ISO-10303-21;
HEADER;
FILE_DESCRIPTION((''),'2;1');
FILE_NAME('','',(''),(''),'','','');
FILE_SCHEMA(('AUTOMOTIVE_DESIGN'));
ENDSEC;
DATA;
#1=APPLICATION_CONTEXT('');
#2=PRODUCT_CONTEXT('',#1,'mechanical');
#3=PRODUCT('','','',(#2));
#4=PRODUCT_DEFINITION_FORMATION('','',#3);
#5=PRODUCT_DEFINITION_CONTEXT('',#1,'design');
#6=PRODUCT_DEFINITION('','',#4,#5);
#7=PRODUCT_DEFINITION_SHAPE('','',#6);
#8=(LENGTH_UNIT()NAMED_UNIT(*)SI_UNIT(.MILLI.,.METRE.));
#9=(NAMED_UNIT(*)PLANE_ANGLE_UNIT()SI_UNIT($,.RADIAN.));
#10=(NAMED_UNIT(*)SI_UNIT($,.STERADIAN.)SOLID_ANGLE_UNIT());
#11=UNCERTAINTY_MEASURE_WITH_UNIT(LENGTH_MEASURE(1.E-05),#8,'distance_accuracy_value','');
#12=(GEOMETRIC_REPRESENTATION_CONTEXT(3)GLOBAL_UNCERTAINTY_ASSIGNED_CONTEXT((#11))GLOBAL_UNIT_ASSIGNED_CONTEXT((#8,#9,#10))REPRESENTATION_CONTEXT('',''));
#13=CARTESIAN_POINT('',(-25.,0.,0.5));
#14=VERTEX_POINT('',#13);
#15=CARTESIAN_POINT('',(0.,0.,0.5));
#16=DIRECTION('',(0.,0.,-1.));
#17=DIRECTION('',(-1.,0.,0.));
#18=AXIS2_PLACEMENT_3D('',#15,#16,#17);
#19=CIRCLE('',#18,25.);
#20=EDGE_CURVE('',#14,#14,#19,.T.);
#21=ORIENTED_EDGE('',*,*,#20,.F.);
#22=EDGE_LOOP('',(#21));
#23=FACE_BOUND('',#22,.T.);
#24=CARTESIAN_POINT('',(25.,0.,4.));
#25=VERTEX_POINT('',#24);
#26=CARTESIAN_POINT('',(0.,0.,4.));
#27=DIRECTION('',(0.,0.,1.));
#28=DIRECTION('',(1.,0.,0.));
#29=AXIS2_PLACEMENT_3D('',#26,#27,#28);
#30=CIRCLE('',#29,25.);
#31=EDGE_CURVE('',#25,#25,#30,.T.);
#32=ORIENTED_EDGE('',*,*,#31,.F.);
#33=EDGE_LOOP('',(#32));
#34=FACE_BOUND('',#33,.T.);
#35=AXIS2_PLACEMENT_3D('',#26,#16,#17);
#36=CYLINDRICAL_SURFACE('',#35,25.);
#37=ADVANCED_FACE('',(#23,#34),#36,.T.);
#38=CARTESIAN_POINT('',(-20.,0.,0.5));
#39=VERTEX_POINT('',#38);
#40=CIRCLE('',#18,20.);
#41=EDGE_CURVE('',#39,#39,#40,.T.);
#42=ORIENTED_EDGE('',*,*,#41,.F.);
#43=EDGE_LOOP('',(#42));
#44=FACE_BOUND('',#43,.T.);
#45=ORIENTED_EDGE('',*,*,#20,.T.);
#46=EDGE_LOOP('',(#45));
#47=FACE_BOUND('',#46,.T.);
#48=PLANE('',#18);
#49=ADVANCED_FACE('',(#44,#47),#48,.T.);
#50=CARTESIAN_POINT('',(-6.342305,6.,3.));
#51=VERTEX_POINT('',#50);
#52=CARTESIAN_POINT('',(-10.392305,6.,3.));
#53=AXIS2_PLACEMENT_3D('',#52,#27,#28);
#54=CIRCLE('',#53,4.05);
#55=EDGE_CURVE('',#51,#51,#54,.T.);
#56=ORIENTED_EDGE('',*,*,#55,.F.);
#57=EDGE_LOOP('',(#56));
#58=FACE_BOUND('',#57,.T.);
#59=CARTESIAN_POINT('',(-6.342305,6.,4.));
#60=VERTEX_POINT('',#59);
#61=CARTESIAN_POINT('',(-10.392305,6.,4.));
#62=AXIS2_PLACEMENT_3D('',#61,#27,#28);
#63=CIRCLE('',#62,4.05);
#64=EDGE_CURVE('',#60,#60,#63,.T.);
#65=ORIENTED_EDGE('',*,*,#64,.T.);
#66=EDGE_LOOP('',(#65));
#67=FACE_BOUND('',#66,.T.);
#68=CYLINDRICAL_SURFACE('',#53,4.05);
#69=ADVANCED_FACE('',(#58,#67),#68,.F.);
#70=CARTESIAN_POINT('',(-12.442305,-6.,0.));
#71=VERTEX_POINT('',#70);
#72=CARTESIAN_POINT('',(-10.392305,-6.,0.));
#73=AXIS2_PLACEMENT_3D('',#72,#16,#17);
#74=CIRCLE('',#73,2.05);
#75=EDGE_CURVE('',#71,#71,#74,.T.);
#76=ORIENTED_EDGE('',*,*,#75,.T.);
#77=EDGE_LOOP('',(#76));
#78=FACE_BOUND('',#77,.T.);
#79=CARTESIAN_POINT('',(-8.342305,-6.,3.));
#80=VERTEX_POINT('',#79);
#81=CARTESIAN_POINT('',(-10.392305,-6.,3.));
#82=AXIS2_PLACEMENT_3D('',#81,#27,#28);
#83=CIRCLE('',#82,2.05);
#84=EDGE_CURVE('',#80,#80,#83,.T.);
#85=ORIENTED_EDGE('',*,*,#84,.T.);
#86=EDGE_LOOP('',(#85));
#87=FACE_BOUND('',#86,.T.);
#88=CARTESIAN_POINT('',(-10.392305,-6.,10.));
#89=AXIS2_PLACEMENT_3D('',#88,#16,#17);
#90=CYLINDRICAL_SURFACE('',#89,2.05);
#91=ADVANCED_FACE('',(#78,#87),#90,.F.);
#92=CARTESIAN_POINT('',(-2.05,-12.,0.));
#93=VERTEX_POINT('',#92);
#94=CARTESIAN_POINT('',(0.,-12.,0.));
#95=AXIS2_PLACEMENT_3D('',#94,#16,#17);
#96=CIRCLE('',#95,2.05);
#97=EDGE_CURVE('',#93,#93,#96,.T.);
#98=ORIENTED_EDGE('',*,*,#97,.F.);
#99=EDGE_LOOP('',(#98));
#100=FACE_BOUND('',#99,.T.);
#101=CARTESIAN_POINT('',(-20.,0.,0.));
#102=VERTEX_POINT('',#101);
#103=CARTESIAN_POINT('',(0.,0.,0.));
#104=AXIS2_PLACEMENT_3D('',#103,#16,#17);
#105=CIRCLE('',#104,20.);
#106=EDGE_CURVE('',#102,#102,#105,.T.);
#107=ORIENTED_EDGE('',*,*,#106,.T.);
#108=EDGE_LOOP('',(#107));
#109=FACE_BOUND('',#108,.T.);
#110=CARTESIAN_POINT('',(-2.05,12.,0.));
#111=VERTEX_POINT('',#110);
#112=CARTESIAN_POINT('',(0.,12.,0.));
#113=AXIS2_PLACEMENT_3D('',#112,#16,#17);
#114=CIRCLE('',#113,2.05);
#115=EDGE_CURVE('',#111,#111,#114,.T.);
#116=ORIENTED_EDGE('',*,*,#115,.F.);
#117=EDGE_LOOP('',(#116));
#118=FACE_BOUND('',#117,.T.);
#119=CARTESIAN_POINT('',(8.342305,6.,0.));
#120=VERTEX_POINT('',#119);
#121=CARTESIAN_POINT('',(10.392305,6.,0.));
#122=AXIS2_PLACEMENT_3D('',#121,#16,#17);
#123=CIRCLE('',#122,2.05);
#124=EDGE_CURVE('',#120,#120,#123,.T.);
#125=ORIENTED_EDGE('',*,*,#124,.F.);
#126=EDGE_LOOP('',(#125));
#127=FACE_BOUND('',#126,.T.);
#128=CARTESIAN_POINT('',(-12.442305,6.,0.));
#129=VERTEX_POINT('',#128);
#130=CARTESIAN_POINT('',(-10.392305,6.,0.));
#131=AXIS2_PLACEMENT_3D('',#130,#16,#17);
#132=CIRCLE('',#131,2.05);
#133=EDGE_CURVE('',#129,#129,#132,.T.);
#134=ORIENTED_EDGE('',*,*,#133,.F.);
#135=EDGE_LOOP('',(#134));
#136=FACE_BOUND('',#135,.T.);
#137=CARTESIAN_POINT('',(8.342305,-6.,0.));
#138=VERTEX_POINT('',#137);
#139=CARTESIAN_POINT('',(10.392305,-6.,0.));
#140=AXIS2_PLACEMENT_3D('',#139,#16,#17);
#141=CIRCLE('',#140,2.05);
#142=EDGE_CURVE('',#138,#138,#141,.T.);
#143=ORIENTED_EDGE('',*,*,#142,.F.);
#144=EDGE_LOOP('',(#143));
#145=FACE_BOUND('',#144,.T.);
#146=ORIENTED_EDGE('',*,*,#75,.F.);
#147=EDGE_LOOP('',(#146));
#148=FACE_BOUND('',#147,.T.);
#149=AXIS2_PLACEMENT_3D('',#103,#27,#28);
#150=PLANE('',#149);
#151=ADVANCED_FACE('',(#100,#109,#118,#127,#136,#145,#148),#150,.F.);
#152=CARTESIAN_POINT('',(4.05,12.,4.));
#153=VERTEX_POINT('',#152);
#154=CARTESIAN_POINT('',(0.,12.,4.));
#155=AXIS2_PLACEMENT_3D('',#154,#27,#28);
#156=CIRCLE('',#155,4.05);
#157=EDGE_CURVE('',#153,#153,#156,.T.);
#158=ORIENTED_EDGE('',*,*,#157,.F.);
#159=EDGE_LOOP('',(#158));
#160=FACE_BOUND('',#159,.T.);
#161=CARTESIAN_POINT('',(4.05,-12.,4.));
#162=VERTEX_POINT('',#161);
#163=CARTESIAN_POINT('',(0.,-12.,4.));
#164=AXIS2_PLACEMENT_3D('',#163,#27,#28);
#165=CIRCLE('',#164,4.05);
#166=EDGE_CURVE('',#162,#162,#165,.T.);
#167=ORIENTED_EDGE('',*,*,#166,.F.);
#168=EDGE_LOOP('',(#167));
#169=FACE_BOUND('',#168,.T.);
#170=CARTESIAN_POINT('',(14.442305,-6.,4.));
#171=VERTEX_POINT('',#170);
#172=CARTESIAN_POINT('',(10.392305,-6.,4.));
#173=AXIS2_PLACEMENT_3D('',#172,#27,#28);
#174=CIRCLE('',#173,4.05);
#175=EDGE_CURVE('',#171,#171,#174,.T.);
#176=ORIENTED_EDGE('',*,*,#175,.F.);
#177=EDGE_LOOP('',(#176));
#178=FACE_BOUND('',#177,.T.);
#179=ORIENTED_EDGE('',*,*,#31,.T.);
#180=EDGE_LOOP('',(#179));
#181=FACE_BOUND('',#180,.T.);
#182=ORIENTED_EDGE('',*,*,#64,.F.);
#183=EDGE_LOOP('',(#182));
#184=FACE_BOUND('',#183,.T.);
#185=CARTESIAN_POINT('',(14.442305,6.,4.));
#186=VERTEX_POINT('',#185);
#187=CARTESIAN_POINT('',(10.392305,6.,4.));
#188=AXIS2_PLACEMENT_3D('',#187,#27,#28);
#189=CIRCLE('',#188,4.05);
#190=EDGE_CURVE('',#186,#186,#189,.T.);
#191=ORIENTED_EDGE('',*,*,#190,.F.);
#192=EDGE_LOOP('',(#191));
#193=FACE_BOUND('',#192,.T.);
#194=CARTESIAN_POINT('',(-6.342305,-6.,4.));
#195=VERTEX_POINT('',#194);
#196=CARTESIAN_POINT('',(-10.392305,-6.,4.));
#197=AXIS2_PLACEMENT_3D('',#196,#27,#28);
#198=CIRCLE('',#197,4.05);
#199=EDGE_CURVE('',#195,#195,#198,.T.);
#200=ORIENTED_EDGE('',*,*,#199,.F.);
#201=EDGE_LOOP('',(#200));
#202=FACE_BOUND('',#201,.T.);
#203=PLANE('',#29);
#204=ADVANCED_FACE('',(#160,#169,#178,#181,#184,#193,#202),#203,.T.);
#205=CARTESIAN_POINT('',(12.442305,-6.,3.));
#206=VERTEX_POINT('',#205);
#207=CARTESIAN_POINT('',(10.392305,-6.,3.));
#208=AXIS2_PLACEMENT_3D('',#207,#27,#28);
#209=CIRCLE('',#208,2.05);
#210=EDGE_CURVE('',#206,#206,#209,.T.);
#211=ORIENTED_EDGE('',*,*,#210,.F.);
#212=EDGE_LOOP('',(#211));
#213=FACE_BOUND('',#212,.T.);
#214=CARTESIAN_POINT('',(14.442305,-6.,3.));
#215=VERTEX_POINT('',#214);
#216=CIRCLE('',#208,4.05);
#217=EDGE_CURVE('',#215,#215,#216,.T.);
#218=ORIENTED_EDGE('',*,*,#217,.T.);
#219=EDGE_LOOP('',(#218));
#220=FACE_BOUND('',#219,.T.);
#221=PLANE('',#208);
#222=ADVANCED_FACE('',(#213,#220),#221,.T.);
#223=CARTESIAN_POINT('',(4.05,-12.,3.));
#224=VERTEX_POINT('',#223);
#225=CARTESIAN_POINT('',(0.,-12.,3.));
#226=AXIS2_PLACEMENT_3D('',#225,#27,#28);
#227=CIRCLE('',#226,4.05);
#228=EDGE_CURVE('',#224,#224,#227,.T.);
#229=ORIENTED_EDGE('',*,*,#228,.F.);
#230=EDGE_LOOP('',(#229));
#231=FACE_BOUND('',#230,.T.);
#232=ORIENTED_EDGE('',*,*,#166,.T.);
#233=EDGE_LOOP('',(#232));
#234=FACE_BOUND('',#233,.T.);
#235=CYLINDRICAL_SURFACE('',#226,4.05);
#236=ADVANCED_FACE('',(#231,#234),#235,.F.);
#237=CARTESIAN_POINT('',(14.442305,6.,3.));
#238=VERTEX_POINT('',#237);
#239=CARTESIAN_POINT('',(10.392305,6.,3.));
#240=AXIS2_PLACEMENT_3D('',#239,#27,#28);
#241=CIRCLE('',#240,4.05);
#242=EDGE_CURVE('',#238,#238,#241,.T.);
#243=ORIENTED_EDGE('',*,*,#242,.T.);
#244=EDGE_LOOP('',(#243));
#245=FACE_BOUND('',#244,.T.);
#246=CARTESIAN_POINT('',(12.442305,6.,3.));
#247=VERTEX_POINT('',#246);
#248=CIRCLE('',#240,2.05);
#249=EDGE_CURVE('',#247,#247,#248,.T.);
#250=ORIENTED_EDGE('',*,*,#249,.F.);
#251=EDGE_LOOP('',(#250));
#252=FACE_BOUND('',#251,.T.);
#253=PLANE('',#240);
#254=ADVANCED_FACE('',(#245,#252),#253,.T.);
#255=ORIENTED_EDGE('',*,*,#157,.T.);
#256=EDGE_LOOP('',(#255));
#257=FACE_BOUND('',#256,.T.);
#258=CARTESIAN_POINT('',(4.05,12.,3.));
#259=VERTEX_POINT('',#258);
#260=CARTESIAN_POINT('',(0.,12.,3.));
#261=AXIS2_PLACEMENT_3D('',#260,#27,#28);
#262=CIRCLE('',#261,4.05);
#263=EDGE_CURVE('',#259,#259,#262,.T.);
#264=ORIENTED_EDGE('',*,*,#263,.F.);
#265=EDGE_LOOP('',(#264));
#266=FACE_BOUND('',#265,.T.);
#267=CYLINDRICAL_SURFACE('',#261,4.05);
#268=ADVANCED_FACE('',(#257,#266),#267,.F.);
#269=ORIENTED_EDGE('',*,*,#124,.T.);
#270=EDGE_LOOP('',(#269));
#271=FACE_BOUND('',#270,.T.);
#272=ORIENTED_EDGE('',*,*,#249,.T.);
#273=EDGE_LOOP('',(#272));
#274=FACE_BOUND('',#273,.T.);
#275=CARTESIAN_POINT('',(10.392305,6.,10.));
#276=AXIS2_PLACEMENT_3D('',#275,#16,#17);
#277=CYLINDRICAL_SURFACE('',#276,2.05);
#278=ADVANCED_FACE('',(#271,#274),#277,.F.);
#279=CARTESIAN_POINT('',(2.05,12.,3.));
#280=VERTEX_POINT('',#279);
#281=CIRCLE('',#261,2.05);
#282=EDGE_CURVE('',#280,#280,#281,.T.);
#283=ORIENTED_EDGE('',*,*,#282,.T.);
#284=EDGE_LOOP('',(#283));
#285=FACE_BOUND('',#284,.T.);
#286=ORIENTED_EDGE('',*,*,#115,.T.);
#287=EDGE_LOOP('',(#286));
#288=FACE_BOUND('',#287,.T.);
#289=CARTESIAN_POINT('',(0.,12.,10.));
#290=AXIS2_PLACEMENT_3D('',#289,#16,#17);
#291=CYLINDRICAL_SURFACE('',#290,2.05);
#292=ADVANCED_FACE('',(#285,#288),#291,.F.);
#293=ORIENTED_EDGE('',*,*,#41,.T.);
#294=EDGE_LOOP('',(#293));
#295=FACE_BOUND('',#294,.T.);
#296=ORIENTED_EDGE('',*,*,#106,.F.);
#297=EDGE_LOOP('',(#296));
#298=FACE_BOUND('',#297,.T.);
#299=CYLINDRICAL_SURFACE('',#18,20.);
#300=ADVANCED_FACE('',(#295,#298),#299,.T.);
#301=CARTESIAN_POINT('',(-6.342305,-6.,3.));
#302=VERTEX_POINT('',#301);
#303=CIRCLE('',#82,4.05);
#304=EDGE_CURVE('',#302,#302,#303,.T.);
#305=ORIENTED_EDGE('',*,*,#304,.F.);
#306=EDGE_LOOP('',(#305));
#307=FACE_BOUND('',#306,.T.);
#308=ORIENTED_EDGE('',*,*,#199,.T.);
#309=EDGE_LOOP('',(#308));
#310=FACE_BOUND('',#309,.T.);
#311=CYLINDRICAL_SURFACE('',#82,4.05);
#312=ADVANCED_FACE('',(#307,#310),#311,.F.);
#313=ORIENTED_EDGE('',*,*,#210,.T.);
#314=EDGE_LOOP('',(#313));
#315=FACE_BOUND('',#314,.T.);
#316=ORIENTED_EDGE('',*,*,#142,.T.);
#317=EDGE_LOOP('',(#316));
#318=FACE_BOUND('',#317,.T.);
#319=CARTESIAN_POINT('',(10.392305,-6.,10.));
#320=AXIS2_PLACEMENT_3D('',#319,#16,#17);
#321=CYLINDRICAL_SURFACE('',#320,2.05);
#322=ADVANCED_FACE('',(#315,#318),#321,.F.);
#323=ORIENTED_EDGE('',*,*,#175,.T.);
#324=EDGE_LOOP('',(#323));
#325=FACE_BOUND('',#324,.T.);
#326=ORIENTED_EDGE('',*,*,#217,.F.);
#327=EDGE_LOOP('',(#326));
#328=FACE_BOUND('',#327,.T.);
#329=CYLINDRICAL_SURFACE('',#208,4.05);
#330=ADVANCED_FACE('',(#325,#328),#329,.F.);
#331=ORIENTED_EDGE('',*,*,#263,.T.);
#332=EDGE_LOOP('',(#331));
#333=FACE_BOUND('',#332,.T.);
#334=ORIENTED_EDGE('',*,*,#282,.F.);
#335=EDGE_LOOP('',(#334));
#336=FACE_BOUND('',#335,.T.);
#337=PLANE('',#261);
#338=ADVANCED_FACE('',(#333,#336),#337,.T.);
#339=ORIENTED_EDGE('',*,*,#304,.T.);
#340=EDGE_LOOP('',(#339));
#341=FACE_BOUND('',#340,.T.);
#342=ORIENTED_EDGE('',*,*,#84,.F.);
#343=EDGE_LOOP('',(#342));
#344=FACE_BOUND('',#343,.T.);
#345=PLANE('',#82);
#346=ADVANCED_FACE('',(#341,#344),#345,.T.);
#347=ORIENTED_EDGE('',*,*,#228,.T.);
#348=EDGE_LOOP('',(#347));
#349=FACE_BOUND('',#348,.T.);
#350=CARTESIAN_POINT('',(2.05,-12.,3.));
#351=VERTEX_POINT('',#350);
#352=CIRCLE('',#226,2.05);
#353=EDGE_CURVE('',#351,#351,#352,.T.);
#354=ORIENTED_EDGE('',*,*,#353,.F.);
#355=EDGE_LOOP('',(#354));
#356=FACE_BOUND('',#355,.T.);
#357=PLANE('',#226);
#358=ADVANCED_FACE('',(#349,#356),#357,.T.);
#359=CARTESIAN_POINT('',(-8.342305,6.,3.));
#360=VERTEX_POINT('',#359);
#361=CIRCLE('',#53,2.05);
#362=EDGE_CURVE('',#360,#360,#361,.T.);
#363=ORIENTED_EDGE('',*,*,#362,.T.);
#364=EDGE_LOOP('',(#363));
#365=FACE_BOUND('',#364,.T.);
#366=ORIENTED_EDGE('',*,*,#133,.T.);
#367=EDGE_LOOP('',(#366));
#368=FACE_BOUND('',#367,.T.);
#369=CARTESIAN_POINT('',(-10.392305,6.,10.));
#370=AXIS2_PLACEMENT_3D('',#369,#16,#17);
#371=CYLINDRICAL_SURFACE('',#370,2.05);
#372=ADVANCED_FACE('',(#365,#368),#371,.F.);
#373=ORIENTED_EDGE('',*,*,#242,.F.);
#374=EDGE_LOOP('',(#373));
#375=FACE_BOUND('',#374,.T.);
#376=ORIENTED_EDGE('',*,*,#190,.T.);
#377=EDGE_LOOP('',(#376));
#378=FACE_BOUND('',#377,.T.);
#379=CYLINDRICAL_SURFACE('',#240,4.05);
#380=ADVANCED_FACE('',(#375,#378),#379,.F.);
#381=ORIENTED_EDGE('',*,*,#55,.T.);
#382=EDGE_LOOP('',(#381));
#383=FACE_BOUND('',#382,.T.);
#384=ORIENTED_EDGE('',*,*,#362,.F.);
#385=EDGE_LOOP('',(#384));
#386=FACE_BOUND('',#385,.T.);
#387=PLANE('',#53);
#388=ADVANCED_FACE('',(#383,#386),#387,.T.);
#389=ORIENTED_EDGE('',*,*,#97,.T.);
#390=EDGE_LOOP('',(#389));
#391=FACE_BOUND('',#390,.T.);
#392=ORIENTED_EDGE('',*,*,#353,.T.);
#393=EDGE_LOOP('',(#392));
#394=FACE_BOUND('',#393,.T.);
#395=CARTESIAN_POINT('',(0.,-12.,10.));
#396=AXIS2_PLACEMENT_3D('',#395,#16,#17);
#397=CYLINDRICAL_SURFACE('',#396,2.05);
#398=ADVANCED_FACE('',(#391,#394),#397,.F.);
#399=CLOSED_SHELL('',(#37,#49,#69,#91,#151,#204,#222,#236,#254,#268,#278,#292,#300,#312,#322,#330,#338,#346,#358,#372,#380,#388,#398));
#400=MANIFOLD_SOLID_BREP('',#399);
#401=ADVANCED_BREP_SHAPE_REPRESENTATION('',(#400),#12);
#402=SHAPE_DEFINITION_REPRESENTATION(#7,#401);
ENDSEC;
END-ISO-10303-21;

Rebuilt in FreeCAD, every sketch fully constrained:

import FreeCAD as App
import Part
import Sketcher

V = App.Vector

doc = App.newDocument("Part")
params = doc.addObject("Spreadsheet::Sheet", "Params")
for row, (alias, value) in enumerate([
    ("sketch1_diameter", "50 mm"),
    ("pad1_length", "4 mm"),
    ("sketch2_diameter", "4.1 mm"),
    ("pocket1_length", "10 mm"),
    ("sketch3_diameter", "8.1 mm"),
    ("sketch3_diameter2", "4.1 mm"),
    ("pocket2_length", "1 mm"),
    ("sketch4_diameter", "50 mm"),
    ("sketch4_diameter2", "40 mm"),
    ("pocket3_length", "0.5 mm"),
], start=1):
    params.set(f"A{row}", alias)
    params.set(f"B{row}", "=" + value)
    params.setAlias(f"B{row}", alias)

body = doc.addObject("PartDesign::Body", "Body")

# Sketch on XY plane
sketch1 = doc.addObject("Sketcher::SketchObject", "Sketch")
body.addObject(sketch1)
sketch1.AttachmentSupport = (doc.XY_Plane, [""])
sketch1.MapMode = "FlatFace"
sketch1.addGeometry(Part.Circle(V(0, 0, 0), V(0, 0, 1), 25), False)
sketch1.addConstraint(Sketcher.Constraint("Coincident", 0, 3, -1, 1))
sketch1.addConstraint(Sketcher.Constraint("Diameter", 0, 50.0))
sketch1.setExpression("Constraints[1]", "Params.sketch1_diameter")
pad1 = doc.addObject("PartDesign::Pad", "Pad")
body.addObject(pad1)
pad1.Profile = sketch1
pad1.setExpression("Length", "Params.pad1_length")

# Sketch on XY plane
sketch2 = doc.addObject("Sketcher::SketchObject", "Sketch001")
body.addObject(sketch2)
sketch2.AttachmentSupport = (doc.XY_Plane, [""])
sketch2.MapMode = "FlatFace"
sketch2.addGeometry(Part.Circle(V(10.4, -6, 0), V(0, 0, 1), 2), False)
sketch2.addGeometry(Part.Circle(V(10.4, 6, 0), V(0, 0, 1), 2), False)
sketch2.addGeometry(Part.Circle(V(0, 12, 0), V(0, 0, 1), 2), False)
sketch2.addGeometry(Part.Circle(V(-10.4, 6, 0), V(0, 0, 1), 2), False)
sketch2.addGeometry(Part.Circle(V(-10.4, -6, 0), V(0, 0, 1), 2), False)
sketch2.addGeometry(Part.Circle(V(0, -12, 0), V(0, 0, 1), 2), False)
sketch2.addConstraint(Sketcher.Constraint("Equal", 0, 1))
sketch2.addConstraint(Sketcher.Constraint("Equal", 1, 2))
sketch2.addConstraint(Sketcher.Constraint("Equal", 2, 3))
sketch2.addConstraint(Sketcher.Constraint("Equal", 3, 4))
sketch2.addConstraint(Sketcher.Constraint("Equal", 4, 5))
sketch2.addConstraint(Sketcher.Constraint("Symmetric", 0, 3, 3, 3, -1, 1))
sketch2.addConstraint(Sketcher.Constraint("Symmetric", 1, 3, 4, 3, -1, 1))
sketch2.addConstraint(Sketcher.Constraint("Symmetric", 2, 3, 5, 3, -1, 1))
sketch2.addConstraint(Sketcher.Constraint("Symmetric", 1, 3, 3, 3, -2))
sketch2.addConstraint(Sketcher.Constraint("PointOnObject", 2, 3, -2))
sketch2.addConstraint(Sketcher.Constraint("Diameter", 0, 4.1))
sketch2.addConstraint(Sketcher.Constraint("DistanceY", 0, 3, -1, 1, 6.0))
sketch2.addConstraint(Sketcher.Constraint("DistanceY", -1, 1, 2, 3, 12.0))
sketch2.addConstraint(Sketcher.Constraint("DistanceX", 3, 3, 1, 3, 20.78461))
sketch2.setExpression("Constraints[10]", "Params.sketch2_diameter")
pocket1 = doc.addObject("PartDesign::Pocket", "Pocket")
body.addObject(pocket1)
pocket1.Profile = sketch2
pocket1.setExpression("Length", "Params.pocket1_length")
pocket1.Reversed = True

# Sketch on XY plane
sketch3 = doc.addObject("Sketcher::SketchObject", "Sketch002")
body.addObject(sketch3)
sketch3.AttachmentSupport = (doc.XY_Plane, [""])
sketch3.MapMode = "FlatFace"
sketch3.AttachmentOffset = App.Placement(V(0, 0, 4), App.Rotation())
sketch3.addGeometry(Part.Circle(V(-10.4, 6, 0), V(0, 0, 1), 4), False)
sketch3.addGeometry(Part.Circle(V(-10.4, 6, 0), V(0, 0, 1), 2), False)
sketch3.addGeometry(Part.Circle(V(-10.4, -6, 0), V(0, 0, 1), 4), False)
sketch3.addGeometry(Part.Circle(V(-10.4, -6, 0), V(0, 0, 1), 2), False)
sketch3.addGeometry(Part.Circle(V(0, -12, 0), V(0, 0, 1), 4), False)
sketch3.addGeometry(Part.Circle(V(0, -12, 0), V(0, 0, 1), 2), False)
sketch3.addGeometry(Part.Circle(V(10.4, -6, 0), V(0, 0, 1), 4), False)
sketch3.addGeometry(Part.Circle(V(10.4, -6, 0), V(0, 0, 1), 2), False)
sketch3.addGeometry(Part.Circle(V(10.4, 6, 0), V(0, 0, 1), 4), False)
sketch3.addGeometry(Part.Circle(V(10.4, 6, 0), V(0, 0, 1), 2), False)
sketch3.addGeometry(Part.Circle(V(0, 12, 0), V(0, 0, 1), 4), False)
sketch3.addGeometry(Part.Circle(V(0, 12, 0), V(0, 0, 1), 2), False)
sketch3.addConstraint(Sketcher.Constraint("Coincident", 1, 3, 0, 3))
sketch3.addConstraint(Sketcher.Constraint("Coincident", 3, 3, 2, 3))
sketch3.addConstraint(Sketcher.Constraint("Coincident", 5, 3, 4, 3))
sketch3.addConstraint(Sketcher.Constraint("Coincident", 7, 3, 6, 3))
sketch3.addConstraint(Sketcher.Constraint("Coincident", 9, 3, 8, 3))
sketch3.addConstraint(Sketcher.Constraint("Coincident", 11, 3, 10, 3))
sketch3.addConstraint(Sketcher.Constraint("Equal", 0, 2))
sketch3.addConstraint(Sketcher.Constraint("Equal", 1, 3))
sketch3.addConstraint(Sketcher.Constraint("Equal", 2, 4))
sketch3.addConstraint(Sketcher.Constraint("Equal", 3, 5))
sketch3.addConstraint(Sketcher.Constraint("Equal", 4, 6))
sketch3.addConstraint(Sketcher.Constraint("Equal", 5, 7))
sketch3.addConstraint(Sketcher.Constraint("Equal", 6, 8))
sketch3.addConstraint(Sketcher.Constraint("Equal", 7, 9))
sketch3.addConstraint(Sketcher.Constraint("Equal", 8, 10))
sketch3.addConstraint(Sketcher.Constraint("Equal", 9, 11))
sketch3.addConstraint(Sketcher.Constraint("Symmetric", 0, 3, 6, 3, -1, 1))
sketch3.addConstraint(Sketcher.Constraint("Symmetric", 2, 3, 8, 3, -1, 1))
sketch3.addConstraint(Sketcher.Constraint("Symmetric", 4, 3, 10, 3, -1, 1))
sketch3.addConstraint(Sketcher.Constraint("Symmetric", 2, 3, 6, 3, -2))
sketch3.addConstraint(Sketcher.Constraint("PointOnObject", 4, 3, -2))
sketch3.addConstraint(Sketcher.Constraint("Diameter", 0, 8.1))
sketch3.addConstraint(Sketcher.Constraint("Diameter", 1, 4.1))
sketch3.addConstraint(Sketcher.Constraint("DistanceY", -1, 1, 0, 3, 6.0))
sketch3.addConstraint(Sketcher.Constraint("DistanceY", 4, 3, -1, 1, 12.0))
sketch3.addConstraint(Sketcher.Constraint("DistanceX", 2, 3, 6, 3, 20.78461))
sketch3.setExpression("Constraints[21]", "Params.sketch3_diameter")
sketch3.setExpression("Constraints[22]", "Params.sketch3_diameter2")
pocket2 = doc.addObject("PartDesign::Pocket", "Pocket001")
body.addObject(pocket2)
pocket2.Profile = sketch3
pocket2.setExpression("Length", "Params.pocket2_length")

# Sketch on XY plane
sketch4 = doc.addObject("Sketcher::SketchObject", "Sketch003")
body.addObject(sketch4)
sketch4.AttachmentSupport = (doc.XY_Plane, [""])
sketch4.MapMode = "FlatFace"
sketch4.addGeometry(Part.Circle(V(0, 0, 0), V(0, 0, 1), 25), False)
sketch4.addGeometry(Part.Circle(V(0, 0, 0), V(0, 0, 1), 20), False)
sketch4.addConstraint(Sketcher.Constraint("Coincident", 0, 3, -1, 1))
sketch4.addConstraint(Sketcher.Constraint("Coincident", 1, 3, -1, 1))
sketch4.addConstraint(Sketcher.Constraint("Diameter", 0, 50.0))
sketch4.addConstraint(Sketcher.Constraint("Diameter", 1, 40.0))
sketch4.setExpression("Constraints[2]", "Params.sketch4_diameter")
sketch4.setExpression("Constraints[3]", "Params.sketch4_diameter2")
pocket3 = doc.addObject("PartDesign::Pocket", "Pocket002")
body.addObject(pocket3)
pocket3.Profile = sketch4
pocket3.setExpression("Length", "Params.pocket3_length")
pocket3.Reversed = True

doc.recompute()
